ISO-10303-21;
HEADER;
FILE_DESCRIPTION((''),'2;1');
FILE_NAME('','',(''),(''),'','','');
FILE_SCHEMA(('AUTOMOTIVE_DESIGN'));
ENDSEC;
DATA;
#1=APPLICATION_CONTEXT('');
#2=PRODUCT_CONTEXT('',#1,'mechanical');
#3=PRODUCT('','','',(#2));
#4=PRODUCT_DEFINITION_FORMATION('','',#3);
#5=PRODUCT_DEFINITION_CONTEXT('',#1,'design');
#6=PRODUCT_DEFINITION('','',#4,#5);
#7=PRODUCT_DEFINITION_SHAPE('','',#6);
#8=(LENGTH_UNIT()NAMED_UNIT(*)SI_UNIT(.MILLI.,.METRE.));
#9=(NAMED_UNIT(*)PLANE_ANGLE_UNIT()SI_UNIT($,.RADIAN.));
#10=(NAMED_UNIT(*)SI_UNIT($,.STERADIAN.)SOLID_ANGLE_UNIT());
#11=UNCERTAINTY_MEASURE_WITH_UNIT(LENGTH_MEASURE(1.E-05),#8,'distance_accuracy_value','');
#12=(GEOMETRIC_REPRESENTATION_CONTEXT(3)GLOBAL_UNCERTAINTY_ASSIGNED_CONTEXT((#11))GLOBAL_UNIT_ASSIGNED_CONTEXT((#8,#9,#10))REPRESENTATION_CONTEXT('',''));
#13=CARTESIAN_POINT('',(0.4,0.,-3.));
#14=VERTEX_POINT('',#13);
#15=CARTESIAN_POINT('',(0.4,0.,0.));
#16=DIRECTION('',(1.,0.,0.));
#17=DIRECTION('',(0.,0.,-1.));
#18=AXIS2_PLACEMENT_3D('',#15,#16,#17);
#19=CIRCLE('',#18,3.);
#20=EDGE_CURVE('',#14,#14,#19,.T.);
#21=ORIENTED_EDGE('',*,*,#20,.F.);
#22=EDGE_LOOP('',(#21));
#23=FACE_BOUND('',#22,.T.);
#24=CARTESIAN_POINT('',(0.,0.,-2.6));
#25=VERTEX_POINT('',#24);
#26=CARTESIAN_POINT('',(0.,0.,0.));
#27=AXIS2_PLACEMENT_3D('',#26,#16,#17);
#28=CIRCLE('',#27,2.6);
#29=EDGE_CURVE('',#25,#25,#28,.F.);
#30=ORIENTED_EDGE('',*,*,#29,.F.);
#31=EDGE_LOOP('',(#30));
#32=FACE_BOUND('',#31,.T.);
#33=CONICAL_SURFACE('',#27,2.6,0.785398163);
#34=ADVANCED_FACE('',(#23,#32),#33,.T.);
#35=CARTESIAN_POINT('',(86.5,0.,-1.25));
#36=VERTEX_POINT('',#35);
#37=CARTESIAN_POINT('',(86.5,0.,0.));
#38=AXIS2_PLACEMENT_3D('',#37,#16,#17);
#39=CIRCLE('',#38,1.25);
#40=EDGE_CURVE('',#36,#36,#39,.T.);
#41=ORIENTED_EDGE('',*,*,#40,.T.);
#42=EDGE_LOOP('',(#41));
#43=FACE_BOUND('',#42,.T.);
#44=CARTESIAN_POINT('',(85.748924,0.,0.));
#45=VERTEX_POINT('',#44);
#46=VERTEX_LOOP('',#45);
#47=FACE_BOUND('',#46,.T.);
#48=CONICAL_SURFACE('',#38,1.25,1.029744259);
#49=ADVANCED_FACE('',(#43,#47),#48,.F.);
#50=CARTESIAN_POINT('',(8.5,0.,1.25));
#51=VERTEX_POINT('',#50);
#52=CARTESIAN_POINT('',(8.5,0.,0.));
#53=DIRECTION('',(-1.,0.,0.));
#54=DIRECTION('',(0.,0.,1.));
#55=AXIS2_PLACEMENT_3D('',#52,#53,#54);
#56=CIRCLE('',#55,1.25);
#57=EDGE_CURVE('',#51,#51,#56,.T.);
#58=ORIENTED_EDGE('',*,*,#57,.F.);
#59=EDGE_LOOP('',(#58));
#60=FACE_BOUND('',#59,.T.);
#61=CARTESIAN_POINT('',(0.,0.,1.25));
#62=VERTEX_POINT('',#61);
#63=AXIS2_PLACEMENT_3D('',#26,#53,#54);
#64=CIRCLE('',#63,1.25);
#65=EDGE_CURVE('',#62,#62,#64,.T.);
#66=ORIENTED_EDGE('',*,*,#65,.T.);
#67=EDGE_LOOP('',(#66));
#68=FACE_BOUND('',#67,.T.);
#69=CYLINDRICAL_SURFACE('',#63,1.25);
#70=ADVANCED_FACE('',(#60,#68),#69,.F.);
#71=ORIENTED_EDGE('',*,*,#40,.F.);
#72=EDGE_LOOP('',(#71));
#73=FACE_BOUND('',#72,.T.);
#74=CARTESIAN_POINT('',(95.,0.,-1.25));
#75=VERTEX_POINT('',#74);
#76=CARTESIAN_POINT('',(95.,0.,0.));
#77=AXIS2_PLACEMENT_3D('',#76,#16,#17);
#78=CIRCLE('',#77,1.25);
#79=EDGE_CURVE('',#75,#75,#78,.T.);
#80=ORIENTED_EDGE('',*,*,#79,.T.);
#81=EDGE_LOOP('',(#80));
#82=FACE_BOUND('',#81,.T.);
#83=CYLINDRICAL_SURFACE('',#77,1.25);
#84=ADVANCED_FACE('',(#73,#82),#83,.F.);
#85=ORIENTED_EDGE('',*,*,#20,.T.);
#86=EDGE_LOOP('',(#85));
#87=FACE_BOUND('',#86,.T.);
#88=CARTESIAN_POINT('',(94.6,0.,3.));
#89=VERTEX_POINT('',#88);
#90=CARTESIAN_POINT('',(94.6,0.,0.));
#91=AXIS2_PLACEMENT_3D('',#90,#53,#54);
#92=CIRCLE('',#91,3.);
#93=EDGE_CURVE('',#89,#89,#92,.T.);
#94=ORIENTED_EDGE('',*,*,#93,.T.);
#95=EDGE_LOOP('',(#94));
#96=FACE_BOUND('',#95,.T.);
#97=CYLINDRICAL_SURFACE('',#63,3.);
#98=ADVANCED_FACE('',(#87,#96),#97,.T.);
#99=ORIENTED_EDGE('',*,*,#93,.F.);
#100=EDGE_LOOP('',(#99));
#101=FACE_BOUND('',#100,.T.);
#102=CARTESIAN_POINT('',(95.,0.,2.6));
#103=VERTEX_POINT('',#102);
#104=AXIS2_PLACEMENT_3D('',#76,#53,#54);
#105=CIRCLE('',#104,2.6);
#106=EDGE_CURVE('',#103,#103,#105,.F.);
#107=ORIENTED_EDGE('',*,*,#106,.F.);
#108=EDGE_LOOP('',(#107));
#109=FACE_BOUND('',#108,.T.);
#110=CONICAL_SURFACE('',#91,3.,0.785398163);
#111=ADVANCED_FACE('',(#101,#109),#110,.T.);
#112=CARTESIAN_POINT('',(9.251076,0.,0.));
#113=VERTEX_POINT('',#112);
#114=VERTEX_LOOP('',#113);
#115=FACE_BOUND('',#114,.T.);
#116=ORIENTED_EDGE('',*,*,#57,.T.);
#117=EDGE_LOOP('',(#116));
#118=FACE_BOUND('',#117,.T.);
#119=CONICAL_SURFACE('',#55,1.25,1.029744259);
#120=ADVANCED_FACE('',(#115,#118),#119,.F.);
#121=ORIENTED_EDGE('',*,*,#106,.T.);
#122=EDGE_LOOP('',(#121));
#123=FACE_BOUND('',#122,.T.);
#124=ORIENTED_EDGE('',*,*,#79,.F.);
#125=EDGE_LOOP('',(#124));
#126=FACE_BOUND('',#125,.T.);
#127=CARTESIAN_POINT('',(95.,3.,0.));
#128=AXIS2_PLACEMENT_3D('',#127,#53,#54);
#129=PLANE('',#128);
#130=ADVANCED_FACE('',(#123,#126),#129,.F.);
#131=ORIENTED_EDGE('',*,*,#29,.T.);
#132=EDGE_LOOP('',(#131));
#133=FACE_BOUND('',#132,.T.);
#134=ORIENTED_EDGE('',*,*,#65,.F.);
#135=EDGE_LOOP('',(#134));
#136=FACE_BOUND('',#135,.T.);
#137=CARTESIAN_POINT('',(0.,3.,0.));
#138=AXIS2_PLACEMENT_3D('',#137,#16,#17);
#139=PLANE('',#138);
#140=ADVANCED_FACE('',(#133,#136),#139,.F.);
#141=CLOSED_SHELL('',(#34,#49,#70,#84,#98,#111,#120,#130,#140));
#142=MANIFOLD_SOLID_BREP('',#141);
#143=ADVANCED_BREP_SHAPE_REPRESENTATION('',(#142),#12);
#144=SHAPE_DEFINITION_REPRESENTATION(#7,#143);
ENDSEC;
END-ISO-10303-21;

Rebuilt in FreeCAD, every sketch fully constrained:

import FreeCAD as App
import Part
import Sketcher
from FreeCAD import Vector
Q = App.Units.Quantity


def edges_at(feature, points):
    """Names of the edges that pass closest to the given points."""
    edges = feature.Shape.Edges
    near = lambda p: min(range(len(edges)), key=lambda i: edges[i].distToShape(Part.Vertex(*p))[0])
    return sorted({f"Edge{near(p) + 1}" for p in points})


def add_polygon(sketch, points):
    """Adds a closed chain of lines whose ends are joined by coincident constraints."""
    first, n = sketch.GeometryCount, len(points)
    for a, b in zip(points, points[1:] + points[:1]):
        sketch.addGeometry(Part.LineSegment(App.Vector(*a, 0), App.Vector(*b, 0)), False)
    for i in range(n):
        sketch.addConstraint(Sketcher.Constraint("Coincident", first + i, 2, first + (i + 1) % n, 1))

doc = App.newDocument("Part")
body = doc.addObject("PartDesign::Body", "Body")

# Sketch on XY plane
sketch1 = body.newObject("Sketcher::SketchObject", "Sketch")
sketch1.AttachmentSupport = (doc.getObject("XY_Plane"), [""])
sketch1.MapMode = "FlatFace"
add_polygon(sketch1, [(0, 3), (0, 0), (95, 0), (95, 3)])  # lines 0-3
sketch1.addConstraint(Sketcher.Constraint("Vertical", 0))
sketch1.addConstraint(Sketcher.Constraint("Horizontal", 1))
sketch1.addConstraint(Sketcher.Constraint("Vertical", 2))
sketch1.addConstraint(Sketcher.Constraint("Horizontal", 3))
sketch1.addConstraint(Sketcher.Constraint("Coincident", 0, 2, -1, 1))
sketch1.addConstraint(Sketcher.Constraint("DistanceX", 1, 1, 1, 2, Q("95 mm")))
sketch1.addConstraint(Sketcher.Constraint("DistanceY", 0, 2, 0, 1, Q("3 mm")))
revolution = body.newObject("PartDesign::Revolution", "Revolution")
revolution.Profile = sketch1
revolution.ReferenceAxis = (sketch1, ["H_Axis"])
revolution.Angle = 360
doc.recompute()

chamfer = body.newObject("PartDesign::Chamfer", "Chamfer")
chamfer.Base = (revolution, edges_at(revolution, [(0, 0, -3), (95, 0, -3)]))
chamfer.Size = 0.4

# Sketch on YZ plane
sketch2 = body.newObject("Sketcher::SketchObject", "Sketch001")
sketch2.AttachmentSupport = (doc.getObject("YZ_Plane"), [""])
sketch2.MapMode = "FlatFace"
sketch2.addGeometry(Part.Circle(Vector(0, 0, 0), Vector(0, 0, 1), 1.2), False)
sketch2.addConstraint(Sketcher.Constraint("Coincident", 0, 3, -1, 1))
sketch2.addConstraint(Sketcher.Constraint("Diameter", 0, Q("2.5 mm")))
doc.recompute()
hole = body.newObject("PartDesign::Hole", "Hole")
hole.Profile = sketch2
hole.ThreadType = "None"
hole.Diameter = 2.5
hole.DepthType = "Dimension"
hole.Depth = 8.5
hole.DrillPoint = "Angled"
hole.DrillPointAngle = 118
hole.Reversed = True

# Sketch on YZ plane
sketch3 = body.newObject("Sketcher::SketchObject", "Sketch002")
sketch3.AttachmentSupport = (doc.getObject("YZ_Plane"), [""])
sketch3.MapMode = "FlatFace"
sketch3.AttachmentOffset = App.Placement(Vector(0, 0, 95), App.Rotation())
sketch3.addGeometry(Part.Circle(Vector(0, 0, 0), Vector(0, 0, 1), 1.2), False)
sketch3.addConstraint(Sketcher.Constraint("Coincident", 0, 3, -1, 1))
sketch3.addConstraint(Sketcher.Constraint("Diameter", 0, Q("2.5 mm")))
doc.recompute()
hole2 = body.newObject("PartDesign::Hole", "Hole001")
hole2.Profile = sketch3
hole2.ThreadType = "None"
hole2.Diameter = 2.5
hole2.DepthType = "Dimension"
hole2.Depth = 8.5
hole2.DrillPoint = "Angled"
hole2.DrillPointAngle = 118

doc.recompute()
